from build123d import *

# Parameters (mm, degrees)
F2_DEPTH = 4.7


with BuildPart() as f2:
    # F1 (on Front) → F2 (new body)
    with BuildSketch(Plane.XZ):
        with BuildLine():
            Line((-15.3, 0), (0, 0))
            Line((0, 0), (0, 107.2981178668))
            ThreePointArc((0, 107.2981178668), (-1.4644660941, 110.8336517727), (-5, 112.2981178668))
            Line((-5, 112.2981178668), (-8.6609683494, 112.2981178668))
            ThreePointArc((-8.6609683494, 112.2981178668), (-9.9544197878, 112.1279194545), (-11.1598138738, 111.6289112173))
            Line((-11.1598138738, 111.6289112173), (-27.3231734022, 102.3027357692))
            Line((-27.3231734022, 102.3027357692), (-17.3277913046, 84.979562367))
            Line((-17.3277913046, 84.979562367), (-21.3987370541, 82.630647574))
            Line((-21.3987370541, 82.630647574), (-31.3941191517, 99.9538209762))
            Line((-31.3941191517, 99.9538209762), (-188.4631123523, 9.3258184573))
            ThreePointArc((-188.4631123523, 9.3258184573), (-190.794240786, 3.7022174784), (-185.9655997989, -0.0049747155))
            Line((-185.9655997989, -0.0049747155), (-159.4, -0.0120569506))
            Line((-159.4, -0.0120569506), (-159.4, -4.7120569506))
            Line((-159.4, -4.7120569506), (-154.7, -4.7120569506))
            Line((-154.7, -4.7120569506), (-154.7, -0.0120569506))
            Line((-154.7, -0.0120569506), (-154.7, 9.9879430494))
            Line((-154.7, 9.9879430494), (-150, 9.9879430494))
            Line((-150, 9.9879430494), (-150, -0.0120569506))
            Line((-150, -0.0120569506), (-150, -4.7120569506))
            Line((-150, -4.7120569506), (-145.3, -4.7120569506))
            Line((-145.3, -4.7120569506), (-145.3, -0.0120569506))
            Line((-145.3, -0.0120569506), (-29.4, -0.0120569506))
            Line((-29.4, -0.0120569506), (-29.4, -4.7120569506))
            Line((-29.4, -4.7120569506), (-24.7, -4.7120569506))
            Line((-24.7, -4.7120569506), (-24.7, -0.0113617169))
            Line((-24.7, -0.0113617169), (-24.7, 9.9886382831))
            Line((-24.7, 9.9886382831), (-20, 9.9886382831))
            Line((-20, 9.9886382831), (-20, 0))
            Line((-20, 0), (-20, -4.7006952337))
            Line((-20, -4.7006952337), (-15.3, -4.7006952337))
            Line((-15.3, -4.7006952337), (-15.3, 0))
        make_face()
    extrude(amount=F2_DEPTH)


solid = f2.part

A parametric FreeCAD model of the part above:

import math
import FreeCAD as App
import Part
import Sketcher
from FreeCAD import Vector
Q = App.Units.Quantity

doc = App.newDocument("Part")
body = doc.addObject("PartDesign::Body", "Body")

# Sketch on XZ plane
sketch1 = body.newObject("Sketcher::SketchObject", "Sketch")
sketch1.AttachmentSupport = (doc.getObject("XZ_Plane"), [""])
sketch1.MapMode = "FlatFace"
sketch1.addGeometry(Part.LineSegment(Vector(-15.3, 0, 0), Vector(0, 0, 0)), False)
sketch1.addGeometry(Part.LineSegment(Vector(0, 0, 0), Vector(0, 107.3, 0)), False)
sketch1.addGeometry(Part.ArcOfCircle(Part.Circle(Vector(-5, 107.3, 0), Vector(0, 0, 1), 5), math.radians(0), math.radians(90)), False)
sketch1.addGeometry(Part.LineSegment(Vector(-5, 112.3, 0), Vector(-8.7, 112.3, 0)), False)
sketch1.addGeometry(Part.ArcOfCircle(Part.Circle(Vector(-8.7, 107.3, 0), Vector(0, 0, 1), 5), math.radians(90), math.radians(120)), False)
sketch1.addGeometry(Part.LineSegment(Vector(-11.2, 111.6, 0), Vector(-27.3, 102.3, 0)), False)
sketch1.addGeometry(Part.LineSegment(Vector(-27.3, 102.3, 0), Vector(-17.3, 85, 0)), False)
sketch1.addGeometry(Part.LineSegment(Vector(-17.3, 85, 0), Vector(-21.4, 82.6, 0)), False)
sketch1.addGeometry(Part.LineSegment(Vector(-21.4, 82.6, 0), Vector(-31.4, 100, 0)), False)
sketch1.addGeometry(Part.LineSegment(Vector(-31.4, 100, 0), Vector(-188.5, 9.3, 0)), False)
sketch1.addGeometry(Part.ArcOfCircle(Part.Circle(Vector(-186, 5, 0), Vector(0, 0, 1), 5), math.radians(120), math.radians(270)), False)
sketch1.addGeometry(Part.LineSegment(Vector(-186, 0, 0), Vector(-159.4, 0, 0)), False)
sketch1.addGeometry(Part.LineSegment(Vector(-159.4, 0, 0), Vector(-159.4, -4.7, 0)), False)
sketch1.addGeometry(Part.LineSegment(Vector(-159.4, -4.7, 0), Vector(-154.7, -4.7, 0)), False)
sketch1.addGeometry(Part.LineSegment(Vector(-154.7, -4.7, 0), Vector(-154.7, 10, 0)), False)
sketch1.addGeometry(Part.LineSegment(Vector(-154.7, 10, 0), Vector(-150, 10, 0)), False)
sketch1.addGeometry(Part.LineSegment(Vector(-150, 10, 0), Vector(-150, -4.7, 0)), False)
sketch1.addGeometry(Part.LineSegment(Vector(-150, -4.7, 0), Vector(-145.3, -4.7, 0)), False)
sketch1.addGeometry(Part.LineSegment(Vector(-145.3, -4.7, 0), Vector(-145.3, 0, 0)), False)
sketch1.addGeometry(Part.LineSegment(Vector(-145.3, 0, 0), Vector(-29.4, 0, 0)), False)
sketch1.addGeometry(Part.LineSegment(Vector(-29.4, 0, 0), Vector(-29.4, -4.7, 0)), False)
sketch1.addGeometry(Part.LineSegment(Vector(-29.4, -4.7, 0), Vector(-24.7, -4.7, 0)), False)
sketch1.addGeometry(Part.LineSegment(Vector(-24.7, -4.7, 0), Vector(-24.7, 10, 0)), False)
sketch1.addGeometry(Part.LineSegment(Vector(-24.7, 10, 0), Vector(-20, 10, 0)), False)
sketch1.addGeometry(Part.LineSegment(Vector(-20, 10, 0), Vector(-20, -4.7, 0)), False)
sketch1.addGeometry(Part.LineSegment(Vector(-20, -4.7, 0), Vector(-15.3, -4.7, 0)), False)
sketch1.addGeometry(Part.LineSegment(Vector(-15.3, -4.7, 0), Vector(-15.3, 0, 0)), False)
sketch1.addConstraint(Sketcher.Constraint("Coincident", 0, 2, 1, 1))
sketch1.addConstraint(Sketcher.Constraint("Tangent", 1, 2, 2, 1))
sketch1.addConstraint(Sketcher.Constraint("Tangent", 2, 2, 3, 1))
sketch1.addConstraint(Sketcher.Constraint("Tangent", 3, 2, 4, 1))
sketch1.addConstraint(Sketcher.Constraint("Tangent", 4, 2, 5, 1))
sketch1.addConstraint(Sketcher.Constraint("Coincident", 5, 2, 6, 1))
sketch1.addConstraint(Sketcher.Constraint("Coincident", 6, 2, 7, 1))
sketch1.addConstraint(Sketcher.Constraint("Coincident", 7, 2, 8, 1))
sketch1.addConstraint(Sketcher.Constraint("Coincident", 8, 2, 9, 1))
sketch1.addConstraint(Sketcher.Constraint("Tangent", 9, 2, 10, 1))
sketch1.addConstraint(Sketcher.Constraint("Tangent", 10, 2, 11, 1))
sketch1.addConstraint(Sketcher.Constraint("Coincident", 11, 2, 12, 1))
sketch1.addConstraint(Sketcher.Constraint("Coincident", 12, 2, 13, 1))
sketch1.addConstraint(Sketcher.Constraint("Coincident", 13, 2, 14, 1))
sketch1.addConstraint(Sketcher.Constraint("Coincident", 14, 2, 15, 1))
sketch1.addConstraint(Sketcher.Constraint("Coincident", 15, 2, 16, 1))
sketch1.addConstraint(Sketcher.Constraint("Coincident", 16, 2, 17, 1))
sketch1.addConstraint(Sketcher.Constraint("Coincident", 17, 2, 18, 1))
sketch1.addConstraint(Sketcher.Constraint("Coincident", 18, 2, 19, 1))
sketch1.addConstraint(Sketcher.Constraint("Coincident", 19, 2, 20, 1))
sketch1.addConstraint(Sketcher.Constraint("Coincident", 20, 2, 21, 1))
sketch1.addConstraint(Sketcher.Constraint("Coincident", 21, 2, 22, 1))
sketch1.addConstraint(Sketcher.Constraint("Coincident", 22, 2, 23, 1))
sketch1.addConstraint(Sketcher.Constraint("Coincident", 23, 2, 24, 1))
sketch1.addConstraint(Sketcher.Constraint("Coincident", 24, 2, 25, 1))
sketch1.addConstraint(Sketcher.Constraint("Coincident", 25, 2, 26, 1))
sketch1.addConstraint(Sketcher.Constraint("Coincident", 26, 2, 0, 1))
sketch1.addConstraint(Sketcher.Constraint("Horizontal", 0))
sketch1.addConstraint(Sketcher.Constraint("Vertical", 1))
sketch1.addConstraint(Sketcher.Constraint("Horizontal", 3))
sketch1.addConstraint(Sketcher.Constraint("Vertical", 12))
sketch1.addConstraint(Sketcher.Constraint("Horizontal", 13))
sketch1.addConstraint(Sketcher.Constraint("Vertical", 14))
sketch1.addConstraint(Sketcher.Constraint("Horizontal", 15))
sketch1.addConstraint(Sketcher.Constraint("Vertical", 16))
sketch1.addConstraint(Sketcher.Constraint("Horizontal", 17))
sketch1.addConstraint(Sketcher.Constraint("Vertical", 18))
sketch1.addConstraint(Sketcher.Constraint("Horizontal", 19))
sketch1.addConstraint(Sketcher.Constraint("Vertical", 20))
sketch1.addConstraint(Sketcher.Constraint("Horizontal", 21))
sketch1.addConstraint(Sketcher.Constraint("Vertical", 22))
sketch1.addConstraint(Sketcher.Constraint("Horizontal", 23))
sketch1.addConstraint(Sketcher.Constraint("Vertical", 24))
sketch1.addConstraint(Sketcher.Constraint("Horizontal", 25))
sketch1.addConstraint(Sketcher.Constraint("Vertical", 26))
sketch1.addConstraint(Sketcher.Constraint("Coincident", 0, 2, -1, 1))
sketch1.addConstraint(Sketcher.Constraint("Equal", 2, 4))
sketch1.addConstraint(Sketcher.Constraint("Equal", 4, 10))
sketch1.addConstraint(Sketcher.Constraint("Perpendicular", 5, 6))
sketch1.addConstraint(Sketcher.Constraint("Perpendicular", 6, 7))
sketch1.addConstraint(Sketcher.Constraint("Perpendicular", 7, 8))
sketch1.addConstraint(Sketcher.Constraint("Perpendicular", 8, 9))
sketch1.addConstraint(Sketcher.Constraint("Horizontal", 13, 2, 16, 2))
sketch1.addConstraint(Sketcher.Constraint("Horizontal", 11, 2, 18, 2))
sketch1.addConstraint(Sketcher.Constraint("Horizontal", 17, 2, 20, 2))
sketch1.addConstraint(Sketcher.Constraint("Equal", 13, 15))
sketch1.addConstraint(Sketcher.Constraint("Equal", 15, 17))
sketch1.addConstraint(Sketcher.Constraint("Equal", 17, 21))
sketch1.addConstraint(Sketcher.Constraint("Equal", 21, 23))
sketch1.addConstraint(Sketcher.Constraint("Equal", 23, 25))
sketch1.addConstraint(Sketcher.Constraint("Equal", 25, 12))
sketch1.addConstraint(Sketcher.Constraint("Equal", 6, 8))
sketch1.addConstraint(Sketcher.Constraint("Radius", 2, Q("5 mm")))
sketch1.addConstraint(Sketcher.Constraint("Distance", 6, Q("20 mm")))
sketch1.addConstraint(Sketcher.Constraint("DistanceX", 0, 1, 0, 2, Q("15.3 mm")))
sketch1.addConstraint(Sketcher.Constraint("DistanceX", 13, 1, 13, 2, Q("4.7 mm")))
sketch1.addConstraint(Sketcher.Constraint("DistanceX", 19, 1, 19, 2, Q("115.9 mm")))
sketch1.addConstraint(Sketcher.Constraint("DistanceY", 14, 1, 14, 2, Q("14.7 mm")))
sketch1.addConstraint(Sketcher.Constraint("Distance", 7, Q("4.7 mm")))
sketch1.addConstraint(Sketcher.Constraint("Distance", 11, Q("26.565601 mm")))
sketch1.addConstraint(Sketcher.Constraint("DistanceX", 3, 2, 3, 1, Q("3.660968 mm")))
sketch1.addConstraint(Sketcher.Constraint("DistanceX", 10, 3, 4, 3, Q("177.303298 mm")))
sketch1.addConstraint(Sketcher.Constraint("Distance", 5, Q("18.660968 mm")))
sketch1.addConstraint(Sketcher.Constraint("DistanceY", 1, 1, 1, 2, Q("107.298118 mm")))
sketch1.addConstraint(Sketcher.Constraint("DistanceY", 22, 1, 22, 2, Q("14.700695 mm")))
sketch1.addConstraint(Sketcher.Constraint("DistanceY", 24, 2, 24, 1, Q("14.689334 mm")))
sketch1.addConstraint(Sketcher.Constraint("DistanceY", 26, 1, 26, 2, Q("4.700695 mm")))
pad1 = body.newObject("PartDesign::Pad", "Pad")
pad1.Profile = sketch1
pad1.Length = 4.7

doc.recompute()
